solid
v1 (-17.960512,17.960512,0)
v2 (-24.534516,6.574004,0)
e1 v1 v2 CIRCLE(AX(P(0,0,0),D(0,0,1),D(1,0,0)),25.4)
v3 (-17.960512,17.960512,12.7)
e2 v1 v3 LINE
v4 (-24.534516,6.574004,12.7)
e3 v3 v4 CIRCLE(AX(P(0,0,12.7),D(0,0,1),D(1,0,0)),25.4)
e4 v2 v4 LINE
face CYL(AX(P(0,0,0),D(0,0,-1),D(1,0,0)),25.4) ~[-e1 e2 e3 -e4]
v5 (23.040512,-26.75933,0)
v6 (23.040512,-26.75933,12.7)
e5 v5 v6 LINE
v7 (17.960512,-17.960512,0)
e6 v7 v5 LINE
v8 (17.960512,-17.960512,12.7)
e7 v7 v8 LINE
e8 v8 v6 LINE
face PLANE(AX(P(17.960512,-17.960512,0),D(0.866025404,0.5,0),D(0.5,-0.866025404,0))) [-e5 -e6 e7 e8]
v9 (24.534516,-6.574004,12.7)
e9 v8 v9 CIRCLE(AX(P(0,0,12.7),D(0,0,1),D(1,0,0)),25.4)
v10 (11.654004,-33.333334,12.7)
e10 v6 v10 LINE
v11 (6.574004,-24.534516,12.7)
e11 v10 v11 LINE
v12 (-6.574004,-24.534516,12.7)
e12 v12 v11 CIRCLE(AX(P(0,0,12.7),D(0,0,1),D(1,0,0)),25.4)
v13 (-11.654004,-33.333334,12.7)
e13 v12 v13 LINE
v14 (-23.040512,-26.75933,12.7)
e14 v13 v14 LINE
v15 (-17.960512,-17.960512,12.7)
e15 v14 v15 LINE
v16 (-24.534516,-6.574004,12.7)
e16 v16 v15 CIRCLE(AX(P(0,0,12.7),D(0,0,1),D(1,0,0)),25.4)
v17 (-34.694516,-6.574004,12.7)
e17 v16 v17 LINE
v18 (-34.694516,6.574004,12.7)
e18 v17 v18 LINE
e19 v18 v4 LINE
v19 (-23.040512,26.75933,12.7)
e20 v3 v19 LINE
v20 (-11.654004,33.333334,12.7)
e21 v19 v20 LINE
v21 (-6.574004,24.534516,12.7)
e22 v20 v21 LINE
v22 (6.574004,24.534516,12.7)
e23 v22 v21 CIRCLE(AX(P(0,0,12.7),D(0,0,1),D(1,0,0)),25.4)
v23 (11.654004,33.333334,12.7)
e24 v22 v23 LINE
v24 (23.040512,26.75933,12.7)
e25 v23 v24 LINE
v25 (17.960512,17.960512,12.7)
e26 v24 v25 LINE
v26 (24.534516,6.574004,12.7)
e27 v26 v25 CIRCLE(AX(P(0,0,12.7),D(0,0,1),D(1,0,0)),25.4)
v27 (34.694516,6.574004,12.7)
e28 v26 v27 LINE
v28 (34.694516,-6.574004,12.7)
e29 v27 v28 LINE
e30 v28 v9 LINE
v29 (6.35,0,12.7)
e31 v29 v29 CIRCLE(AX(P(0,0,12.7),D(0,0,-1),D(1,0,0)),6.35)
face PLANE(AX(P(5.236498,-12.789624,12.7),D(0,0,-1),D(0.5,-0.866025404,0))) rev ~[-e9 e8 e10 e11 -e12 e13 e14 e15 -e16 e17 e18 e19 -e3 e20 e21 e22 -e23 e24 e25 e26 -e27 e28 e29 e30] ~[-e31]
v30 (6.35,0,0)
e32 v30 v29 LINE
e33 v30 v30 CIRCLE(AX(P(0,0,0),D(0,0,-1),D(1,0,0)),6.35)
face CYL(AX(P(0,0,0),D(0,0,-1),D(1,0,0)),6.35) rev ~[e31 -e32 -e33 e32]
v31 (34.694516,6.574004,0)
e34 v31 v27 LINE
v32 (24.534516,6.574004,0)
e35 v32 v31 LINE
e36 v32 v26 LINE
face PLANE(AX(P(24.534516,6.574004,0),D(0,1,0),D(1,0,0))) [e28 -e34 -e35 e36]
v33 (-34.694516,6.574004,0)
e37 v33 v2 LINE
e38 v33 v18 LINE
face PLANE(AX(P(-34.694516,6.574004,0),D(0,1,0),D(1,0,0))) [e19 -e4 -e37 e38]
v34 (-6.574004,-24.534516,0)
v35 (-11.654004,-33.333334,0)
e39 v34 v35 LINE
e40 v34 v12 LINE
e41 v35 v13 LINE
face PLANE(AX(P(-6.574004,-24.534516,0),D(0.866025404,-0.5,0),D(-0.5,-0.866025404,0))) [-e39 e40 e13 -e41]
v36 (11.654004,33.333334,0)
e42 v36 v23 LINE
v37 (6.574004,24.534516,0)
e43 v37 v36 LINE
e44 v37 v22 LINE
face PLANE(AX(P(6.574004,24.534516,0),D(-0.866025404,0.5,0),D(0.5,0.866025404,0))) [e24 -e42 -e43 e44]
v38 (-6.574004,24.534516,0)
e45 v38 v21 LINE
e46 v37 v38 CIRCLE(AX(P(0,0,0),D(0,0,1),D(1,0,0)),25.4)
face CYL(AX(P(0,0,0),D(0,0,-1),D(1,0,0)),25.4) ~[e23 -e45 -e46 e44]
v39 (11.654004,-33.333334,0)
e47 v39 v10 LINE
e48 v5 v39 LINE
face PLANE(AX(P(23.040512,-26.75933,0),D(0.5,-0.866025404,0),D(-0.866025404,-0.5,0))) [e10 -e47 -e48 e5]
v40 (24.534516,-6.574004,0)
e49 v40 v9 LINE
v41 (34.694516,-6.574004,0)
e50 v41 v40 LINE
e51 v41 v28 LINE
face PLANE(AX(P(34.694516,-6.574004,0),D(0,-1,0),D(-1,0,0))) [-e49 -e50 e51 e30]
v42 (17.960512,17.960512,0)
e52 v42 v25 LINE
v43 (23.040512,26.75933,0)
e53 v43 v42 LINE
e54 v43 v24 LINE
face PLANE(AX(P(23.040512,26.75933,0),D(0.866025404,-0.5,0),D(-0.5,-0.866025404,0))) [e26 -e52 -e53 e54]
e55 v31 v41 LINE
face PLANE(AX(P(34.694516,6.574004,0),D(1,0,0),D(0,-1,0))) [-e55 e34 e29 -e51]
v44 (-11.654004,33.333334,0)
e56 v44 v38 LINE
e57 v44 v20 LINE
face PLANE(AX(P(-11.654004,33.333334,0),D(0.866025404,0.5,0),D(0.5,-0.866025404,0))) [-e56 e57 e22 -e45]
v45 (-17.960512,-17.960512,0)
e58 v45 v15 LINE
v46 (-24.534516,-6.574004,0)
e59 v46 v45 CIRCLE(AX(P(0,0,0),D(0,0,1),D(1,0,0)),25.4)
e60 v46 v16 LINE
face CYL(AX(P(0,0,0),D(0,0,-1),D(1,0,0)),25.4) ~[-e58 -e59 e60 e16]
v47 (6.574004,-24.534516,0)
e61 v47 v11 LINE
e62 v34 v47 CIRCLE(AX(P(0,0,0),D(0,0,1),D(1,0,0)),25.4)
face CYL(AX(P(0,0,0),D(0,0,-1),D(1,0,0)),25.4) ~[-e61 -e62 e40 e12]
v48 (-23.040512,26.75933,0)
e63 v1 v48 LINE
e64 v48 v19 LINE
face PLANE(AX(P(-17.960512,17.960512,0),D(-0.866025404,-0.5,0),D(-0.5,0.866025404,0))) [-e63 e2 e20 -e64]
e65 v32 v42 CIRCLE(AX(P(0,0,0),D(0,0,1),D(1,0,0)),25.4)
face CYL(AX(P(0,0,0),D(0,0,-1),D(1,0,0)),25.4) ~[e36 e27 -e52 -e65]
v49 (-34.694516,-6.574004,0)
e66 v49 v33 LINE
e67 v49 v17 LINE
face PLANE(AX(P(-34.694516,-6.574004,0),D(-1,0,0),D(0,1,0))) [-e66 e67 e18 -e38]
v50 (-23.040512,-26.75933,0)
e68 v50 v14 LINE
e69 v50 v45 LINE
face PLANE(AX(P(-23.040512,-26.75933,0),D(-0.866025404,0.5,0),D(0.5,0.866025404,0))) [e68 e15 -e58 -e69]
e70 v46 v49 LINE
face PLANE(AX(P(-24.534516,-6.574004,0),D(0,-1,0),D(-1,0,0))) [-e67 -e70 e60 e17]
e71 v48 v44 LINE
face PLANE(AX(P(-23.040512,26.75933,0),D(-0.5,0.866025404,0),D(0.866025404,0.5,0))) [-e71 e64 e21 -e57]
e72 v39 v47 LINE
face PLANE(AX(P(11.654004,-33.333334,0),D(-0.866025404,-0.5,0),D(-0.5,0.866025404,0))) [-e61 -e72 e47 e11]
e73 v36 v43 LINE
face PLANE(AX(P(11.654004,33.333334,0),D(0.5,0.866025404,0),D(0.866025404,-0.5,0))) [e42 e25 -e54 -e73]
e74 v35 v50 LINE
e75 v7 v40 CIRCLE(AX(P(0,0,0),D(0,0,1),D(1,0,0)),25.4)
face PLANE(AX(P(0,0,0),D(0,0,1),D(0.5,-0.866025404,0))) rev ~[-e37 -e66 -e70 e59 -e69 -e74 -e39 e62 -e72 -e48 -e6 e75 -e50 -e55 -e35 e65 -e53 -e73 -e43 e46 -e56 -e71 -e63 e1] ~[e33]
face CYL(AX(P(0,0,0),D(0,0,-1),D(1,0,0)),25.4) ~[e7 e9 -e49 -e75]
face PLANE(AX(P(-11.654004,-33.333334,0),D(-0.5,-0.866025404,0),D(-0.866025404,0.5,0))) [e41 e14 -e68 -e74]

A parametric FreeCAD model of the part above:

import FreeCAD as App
import Part
import Sketcher
from FreeCAD import Vector
Q = App.Units.Quantity


def add_polygon(sketch, points):
    """Adds a closed chain of lines whose ends are joined by coincident constraints."""
    first, n = sketch.GeometryCount, len(points)
    for a, b in zip(points, points[1:] + points[:1]):
        sketch.addGeometry(Part.LineSegment(App.Vector(*a, 0), App.Vector(*b, 0)), False)
    for i in range(n):
        sketch.addConstraint(Sketcher.Constraint("Coincident", first + i, 2, first + (i + 1) % n, 1))

doc = App.newDocument("Part")
params = doc.addObject("Spreadsheet::Sheet", "Params")
for row, (alias, value) in enumerate([
    ("sketch1_diameter", "2 in"),
    ("pad1_length", "0.5 in"),
    ("sketch2_length", "1 in"),
    ("sketch2_width", "0.4 in"),
    ("pad2_length", "0.5 in"),
    ("sketch3_diameter", "0.5 in"),
    ("pocket1_length", "1 in"),
], start=1):
    params.set(f"A{row}", alias)
    params.set(f"B{row}", "=" + value)
    params.setAlias(f"B{row}", alias)

body = doc.addObject("PartDesign::Body", "Body")

sketch1 = body.newObject("Sketcher::SketchObject", "Sketch")
sketch1.AttachmentSupport = (doc.getObject("XY_Plane"), [""])
sketch1.MapMode = "FlatFace"
sketch1.addGeometry(Part.Circle(Vector(0, 0, 0), Vector(0, 0, 1), 25), False)
sketch1.addConstraint(Sketcher.Constraint("Coincident", 0, 3, -1, 1))
sketch1.addConstraint(Sketcher.Constraint("Diameter", 0, Q("2 in")))
sketch1.setExpression("Constraints[1]", "Params.sketch1_diameter")
pad1 = body.newObject("PartDesign::Pad", "Pad")
pad1.Profile = sketch1
pad1.setExpression("Length", "Params.pad1_length")

sketch2 = body.newObject("Sketcher::SketchObject", "Sketch001")
sketch2.AttachmentSupport = (doc.getObject("XY_Plane"), [""])
sketch2.MapMode = "FlatFace"
add_polygon(sketch2, [(25, -7), (0, 0), (25, 7), (35, 7), (35, -7)])
sketch2.addConstraint(Sketcher.Constraint("Horizontal", 2))
sketch2.addConstraint(Sketcher.Constraint("Vertical", 3))
sketch2.addConstraint(Sketcher.Constraint("Horizontal", 4))
sketch2.addConstraint(Sketcher.Constraint("Coincident", 0, 2, -1, 1))
sketch2.addConstraint(Sketcher.Constraint("Symmetric", 1, 2, 4, 2, -1))
sketch2.addConstraint(Sketcher.Constraint("Distance", 0, Q("1 in")))
sketch2.addConstraint(Sketcher.Constraint("DistanceX", 2, 1, 2, 2, Q("0.4 in")))
sketch2.addConstraint(Sketcher.Constraint("Angle", 0, Q("164.999999 deg")))
sketch2.setExpression("Constraints[10]", "Params.sketch2_length")
sketch2.setExpression("Constraints[11]", "Params.sketch2_width")
pad2 = body.newObject("PartDesign::Pad", "Pad001")
pad2.Profile = sketch2
pad2.setExpression("Length", "Params.pad2_length")
body2 = doc.addObject("PartDesign::Body", "Body001")
doc.recompute()

body2.BaseFeature = body
doc.recompute()

body3 = doc.addObject("PartDesign::Body", "Body002")
body3.BaseFeature = body
body3.Placement = App.Placement(Vector(0, 0, 0), App.Rotation(Vector(0, 0, 1), 60))
boolean = body2.newObject("PartDesign::Boolean", "Boolean")
boolean.Type = "Fuse"
boolean.addObjects([body3])
doc.recompute()

body4 = doc.addObject("PartDesign::Body", "Body003")
body4.BaseFeature = body
body4.Placement = App.Placement(Vector(0, 0, 0), App.Rotation(Vector(0, 0, 1), 120))
boolean2 = body2.newObject("PartDesign::Boolean", "Boolean001")
boolean2.Type = "Fuse"
boolean2.addObjects([body4])
doc.recompute()

body5 = doc.addObject("PartDesign::Body", "Body004")
body5.BaseFeature = body
body5.Placement = App.Placement(Vector(0, 0, 0), App.Rotation(Vector(0, 0, 1), 180))
boolean3 = body2.newObject("PartDesign::Boolean", "Boolean002")
boolean3.Type = "Fuse"
boolean3.addObjects([body5])
doc.recompute()

body6 = doc.addObject("PartDesign::Body", "Body005")
body6.BaseFeature = body
body6.Placement = App.Placement(Vector(0, 0, 0), App.Rotation(Vector(0, 0, 1), 240))
boolean4 = body2.newObject("PartDesign::Boolean", "Boolean003")
boolean4.Type = "Fuse"
boolean4.addObjects([body6])
doc.recompute()

body.Placement = App.Placement(Vector(0, 0, 0), App.Rotation(Vector(0, 0, 1), 300))
boolean5 = body2.newObject("PartDesign::Boolean", "Boolean004")
boolean5.Type = "Fuse"
boolean5.addObjects([body])

sketch3 = body2.newObject("Sketcher::SketchObject", "Sketch002")
sketch3.AttachmentSupport = (doc.getObject("XY_Plane001"), [""])
sketch3.MapMode = "FlatFace"
sketch3.addGeometry(Part.Circle(Vector(0, 0, 0), Vector(0, 0, 1), 6), False)
sketch3.addConstraint(Sketcher.Constraint("Coincident", 0, 3, -1, 1))
sketch3.addConstraint(Sketcher.Constraint("Diameter", 0, Q("0.5 in")))
sketch3.setExpression("Constraints[1]", "Params.sketch3_diameter")
pocket1 = body2.newObject("PartDesign::Pocket", "Pocket")
pocket1.Profile = sketch3
pocket1.setExpression("Length", "Params.pocket1_length")
pocket1.Reversed = True

doc.recompute()
